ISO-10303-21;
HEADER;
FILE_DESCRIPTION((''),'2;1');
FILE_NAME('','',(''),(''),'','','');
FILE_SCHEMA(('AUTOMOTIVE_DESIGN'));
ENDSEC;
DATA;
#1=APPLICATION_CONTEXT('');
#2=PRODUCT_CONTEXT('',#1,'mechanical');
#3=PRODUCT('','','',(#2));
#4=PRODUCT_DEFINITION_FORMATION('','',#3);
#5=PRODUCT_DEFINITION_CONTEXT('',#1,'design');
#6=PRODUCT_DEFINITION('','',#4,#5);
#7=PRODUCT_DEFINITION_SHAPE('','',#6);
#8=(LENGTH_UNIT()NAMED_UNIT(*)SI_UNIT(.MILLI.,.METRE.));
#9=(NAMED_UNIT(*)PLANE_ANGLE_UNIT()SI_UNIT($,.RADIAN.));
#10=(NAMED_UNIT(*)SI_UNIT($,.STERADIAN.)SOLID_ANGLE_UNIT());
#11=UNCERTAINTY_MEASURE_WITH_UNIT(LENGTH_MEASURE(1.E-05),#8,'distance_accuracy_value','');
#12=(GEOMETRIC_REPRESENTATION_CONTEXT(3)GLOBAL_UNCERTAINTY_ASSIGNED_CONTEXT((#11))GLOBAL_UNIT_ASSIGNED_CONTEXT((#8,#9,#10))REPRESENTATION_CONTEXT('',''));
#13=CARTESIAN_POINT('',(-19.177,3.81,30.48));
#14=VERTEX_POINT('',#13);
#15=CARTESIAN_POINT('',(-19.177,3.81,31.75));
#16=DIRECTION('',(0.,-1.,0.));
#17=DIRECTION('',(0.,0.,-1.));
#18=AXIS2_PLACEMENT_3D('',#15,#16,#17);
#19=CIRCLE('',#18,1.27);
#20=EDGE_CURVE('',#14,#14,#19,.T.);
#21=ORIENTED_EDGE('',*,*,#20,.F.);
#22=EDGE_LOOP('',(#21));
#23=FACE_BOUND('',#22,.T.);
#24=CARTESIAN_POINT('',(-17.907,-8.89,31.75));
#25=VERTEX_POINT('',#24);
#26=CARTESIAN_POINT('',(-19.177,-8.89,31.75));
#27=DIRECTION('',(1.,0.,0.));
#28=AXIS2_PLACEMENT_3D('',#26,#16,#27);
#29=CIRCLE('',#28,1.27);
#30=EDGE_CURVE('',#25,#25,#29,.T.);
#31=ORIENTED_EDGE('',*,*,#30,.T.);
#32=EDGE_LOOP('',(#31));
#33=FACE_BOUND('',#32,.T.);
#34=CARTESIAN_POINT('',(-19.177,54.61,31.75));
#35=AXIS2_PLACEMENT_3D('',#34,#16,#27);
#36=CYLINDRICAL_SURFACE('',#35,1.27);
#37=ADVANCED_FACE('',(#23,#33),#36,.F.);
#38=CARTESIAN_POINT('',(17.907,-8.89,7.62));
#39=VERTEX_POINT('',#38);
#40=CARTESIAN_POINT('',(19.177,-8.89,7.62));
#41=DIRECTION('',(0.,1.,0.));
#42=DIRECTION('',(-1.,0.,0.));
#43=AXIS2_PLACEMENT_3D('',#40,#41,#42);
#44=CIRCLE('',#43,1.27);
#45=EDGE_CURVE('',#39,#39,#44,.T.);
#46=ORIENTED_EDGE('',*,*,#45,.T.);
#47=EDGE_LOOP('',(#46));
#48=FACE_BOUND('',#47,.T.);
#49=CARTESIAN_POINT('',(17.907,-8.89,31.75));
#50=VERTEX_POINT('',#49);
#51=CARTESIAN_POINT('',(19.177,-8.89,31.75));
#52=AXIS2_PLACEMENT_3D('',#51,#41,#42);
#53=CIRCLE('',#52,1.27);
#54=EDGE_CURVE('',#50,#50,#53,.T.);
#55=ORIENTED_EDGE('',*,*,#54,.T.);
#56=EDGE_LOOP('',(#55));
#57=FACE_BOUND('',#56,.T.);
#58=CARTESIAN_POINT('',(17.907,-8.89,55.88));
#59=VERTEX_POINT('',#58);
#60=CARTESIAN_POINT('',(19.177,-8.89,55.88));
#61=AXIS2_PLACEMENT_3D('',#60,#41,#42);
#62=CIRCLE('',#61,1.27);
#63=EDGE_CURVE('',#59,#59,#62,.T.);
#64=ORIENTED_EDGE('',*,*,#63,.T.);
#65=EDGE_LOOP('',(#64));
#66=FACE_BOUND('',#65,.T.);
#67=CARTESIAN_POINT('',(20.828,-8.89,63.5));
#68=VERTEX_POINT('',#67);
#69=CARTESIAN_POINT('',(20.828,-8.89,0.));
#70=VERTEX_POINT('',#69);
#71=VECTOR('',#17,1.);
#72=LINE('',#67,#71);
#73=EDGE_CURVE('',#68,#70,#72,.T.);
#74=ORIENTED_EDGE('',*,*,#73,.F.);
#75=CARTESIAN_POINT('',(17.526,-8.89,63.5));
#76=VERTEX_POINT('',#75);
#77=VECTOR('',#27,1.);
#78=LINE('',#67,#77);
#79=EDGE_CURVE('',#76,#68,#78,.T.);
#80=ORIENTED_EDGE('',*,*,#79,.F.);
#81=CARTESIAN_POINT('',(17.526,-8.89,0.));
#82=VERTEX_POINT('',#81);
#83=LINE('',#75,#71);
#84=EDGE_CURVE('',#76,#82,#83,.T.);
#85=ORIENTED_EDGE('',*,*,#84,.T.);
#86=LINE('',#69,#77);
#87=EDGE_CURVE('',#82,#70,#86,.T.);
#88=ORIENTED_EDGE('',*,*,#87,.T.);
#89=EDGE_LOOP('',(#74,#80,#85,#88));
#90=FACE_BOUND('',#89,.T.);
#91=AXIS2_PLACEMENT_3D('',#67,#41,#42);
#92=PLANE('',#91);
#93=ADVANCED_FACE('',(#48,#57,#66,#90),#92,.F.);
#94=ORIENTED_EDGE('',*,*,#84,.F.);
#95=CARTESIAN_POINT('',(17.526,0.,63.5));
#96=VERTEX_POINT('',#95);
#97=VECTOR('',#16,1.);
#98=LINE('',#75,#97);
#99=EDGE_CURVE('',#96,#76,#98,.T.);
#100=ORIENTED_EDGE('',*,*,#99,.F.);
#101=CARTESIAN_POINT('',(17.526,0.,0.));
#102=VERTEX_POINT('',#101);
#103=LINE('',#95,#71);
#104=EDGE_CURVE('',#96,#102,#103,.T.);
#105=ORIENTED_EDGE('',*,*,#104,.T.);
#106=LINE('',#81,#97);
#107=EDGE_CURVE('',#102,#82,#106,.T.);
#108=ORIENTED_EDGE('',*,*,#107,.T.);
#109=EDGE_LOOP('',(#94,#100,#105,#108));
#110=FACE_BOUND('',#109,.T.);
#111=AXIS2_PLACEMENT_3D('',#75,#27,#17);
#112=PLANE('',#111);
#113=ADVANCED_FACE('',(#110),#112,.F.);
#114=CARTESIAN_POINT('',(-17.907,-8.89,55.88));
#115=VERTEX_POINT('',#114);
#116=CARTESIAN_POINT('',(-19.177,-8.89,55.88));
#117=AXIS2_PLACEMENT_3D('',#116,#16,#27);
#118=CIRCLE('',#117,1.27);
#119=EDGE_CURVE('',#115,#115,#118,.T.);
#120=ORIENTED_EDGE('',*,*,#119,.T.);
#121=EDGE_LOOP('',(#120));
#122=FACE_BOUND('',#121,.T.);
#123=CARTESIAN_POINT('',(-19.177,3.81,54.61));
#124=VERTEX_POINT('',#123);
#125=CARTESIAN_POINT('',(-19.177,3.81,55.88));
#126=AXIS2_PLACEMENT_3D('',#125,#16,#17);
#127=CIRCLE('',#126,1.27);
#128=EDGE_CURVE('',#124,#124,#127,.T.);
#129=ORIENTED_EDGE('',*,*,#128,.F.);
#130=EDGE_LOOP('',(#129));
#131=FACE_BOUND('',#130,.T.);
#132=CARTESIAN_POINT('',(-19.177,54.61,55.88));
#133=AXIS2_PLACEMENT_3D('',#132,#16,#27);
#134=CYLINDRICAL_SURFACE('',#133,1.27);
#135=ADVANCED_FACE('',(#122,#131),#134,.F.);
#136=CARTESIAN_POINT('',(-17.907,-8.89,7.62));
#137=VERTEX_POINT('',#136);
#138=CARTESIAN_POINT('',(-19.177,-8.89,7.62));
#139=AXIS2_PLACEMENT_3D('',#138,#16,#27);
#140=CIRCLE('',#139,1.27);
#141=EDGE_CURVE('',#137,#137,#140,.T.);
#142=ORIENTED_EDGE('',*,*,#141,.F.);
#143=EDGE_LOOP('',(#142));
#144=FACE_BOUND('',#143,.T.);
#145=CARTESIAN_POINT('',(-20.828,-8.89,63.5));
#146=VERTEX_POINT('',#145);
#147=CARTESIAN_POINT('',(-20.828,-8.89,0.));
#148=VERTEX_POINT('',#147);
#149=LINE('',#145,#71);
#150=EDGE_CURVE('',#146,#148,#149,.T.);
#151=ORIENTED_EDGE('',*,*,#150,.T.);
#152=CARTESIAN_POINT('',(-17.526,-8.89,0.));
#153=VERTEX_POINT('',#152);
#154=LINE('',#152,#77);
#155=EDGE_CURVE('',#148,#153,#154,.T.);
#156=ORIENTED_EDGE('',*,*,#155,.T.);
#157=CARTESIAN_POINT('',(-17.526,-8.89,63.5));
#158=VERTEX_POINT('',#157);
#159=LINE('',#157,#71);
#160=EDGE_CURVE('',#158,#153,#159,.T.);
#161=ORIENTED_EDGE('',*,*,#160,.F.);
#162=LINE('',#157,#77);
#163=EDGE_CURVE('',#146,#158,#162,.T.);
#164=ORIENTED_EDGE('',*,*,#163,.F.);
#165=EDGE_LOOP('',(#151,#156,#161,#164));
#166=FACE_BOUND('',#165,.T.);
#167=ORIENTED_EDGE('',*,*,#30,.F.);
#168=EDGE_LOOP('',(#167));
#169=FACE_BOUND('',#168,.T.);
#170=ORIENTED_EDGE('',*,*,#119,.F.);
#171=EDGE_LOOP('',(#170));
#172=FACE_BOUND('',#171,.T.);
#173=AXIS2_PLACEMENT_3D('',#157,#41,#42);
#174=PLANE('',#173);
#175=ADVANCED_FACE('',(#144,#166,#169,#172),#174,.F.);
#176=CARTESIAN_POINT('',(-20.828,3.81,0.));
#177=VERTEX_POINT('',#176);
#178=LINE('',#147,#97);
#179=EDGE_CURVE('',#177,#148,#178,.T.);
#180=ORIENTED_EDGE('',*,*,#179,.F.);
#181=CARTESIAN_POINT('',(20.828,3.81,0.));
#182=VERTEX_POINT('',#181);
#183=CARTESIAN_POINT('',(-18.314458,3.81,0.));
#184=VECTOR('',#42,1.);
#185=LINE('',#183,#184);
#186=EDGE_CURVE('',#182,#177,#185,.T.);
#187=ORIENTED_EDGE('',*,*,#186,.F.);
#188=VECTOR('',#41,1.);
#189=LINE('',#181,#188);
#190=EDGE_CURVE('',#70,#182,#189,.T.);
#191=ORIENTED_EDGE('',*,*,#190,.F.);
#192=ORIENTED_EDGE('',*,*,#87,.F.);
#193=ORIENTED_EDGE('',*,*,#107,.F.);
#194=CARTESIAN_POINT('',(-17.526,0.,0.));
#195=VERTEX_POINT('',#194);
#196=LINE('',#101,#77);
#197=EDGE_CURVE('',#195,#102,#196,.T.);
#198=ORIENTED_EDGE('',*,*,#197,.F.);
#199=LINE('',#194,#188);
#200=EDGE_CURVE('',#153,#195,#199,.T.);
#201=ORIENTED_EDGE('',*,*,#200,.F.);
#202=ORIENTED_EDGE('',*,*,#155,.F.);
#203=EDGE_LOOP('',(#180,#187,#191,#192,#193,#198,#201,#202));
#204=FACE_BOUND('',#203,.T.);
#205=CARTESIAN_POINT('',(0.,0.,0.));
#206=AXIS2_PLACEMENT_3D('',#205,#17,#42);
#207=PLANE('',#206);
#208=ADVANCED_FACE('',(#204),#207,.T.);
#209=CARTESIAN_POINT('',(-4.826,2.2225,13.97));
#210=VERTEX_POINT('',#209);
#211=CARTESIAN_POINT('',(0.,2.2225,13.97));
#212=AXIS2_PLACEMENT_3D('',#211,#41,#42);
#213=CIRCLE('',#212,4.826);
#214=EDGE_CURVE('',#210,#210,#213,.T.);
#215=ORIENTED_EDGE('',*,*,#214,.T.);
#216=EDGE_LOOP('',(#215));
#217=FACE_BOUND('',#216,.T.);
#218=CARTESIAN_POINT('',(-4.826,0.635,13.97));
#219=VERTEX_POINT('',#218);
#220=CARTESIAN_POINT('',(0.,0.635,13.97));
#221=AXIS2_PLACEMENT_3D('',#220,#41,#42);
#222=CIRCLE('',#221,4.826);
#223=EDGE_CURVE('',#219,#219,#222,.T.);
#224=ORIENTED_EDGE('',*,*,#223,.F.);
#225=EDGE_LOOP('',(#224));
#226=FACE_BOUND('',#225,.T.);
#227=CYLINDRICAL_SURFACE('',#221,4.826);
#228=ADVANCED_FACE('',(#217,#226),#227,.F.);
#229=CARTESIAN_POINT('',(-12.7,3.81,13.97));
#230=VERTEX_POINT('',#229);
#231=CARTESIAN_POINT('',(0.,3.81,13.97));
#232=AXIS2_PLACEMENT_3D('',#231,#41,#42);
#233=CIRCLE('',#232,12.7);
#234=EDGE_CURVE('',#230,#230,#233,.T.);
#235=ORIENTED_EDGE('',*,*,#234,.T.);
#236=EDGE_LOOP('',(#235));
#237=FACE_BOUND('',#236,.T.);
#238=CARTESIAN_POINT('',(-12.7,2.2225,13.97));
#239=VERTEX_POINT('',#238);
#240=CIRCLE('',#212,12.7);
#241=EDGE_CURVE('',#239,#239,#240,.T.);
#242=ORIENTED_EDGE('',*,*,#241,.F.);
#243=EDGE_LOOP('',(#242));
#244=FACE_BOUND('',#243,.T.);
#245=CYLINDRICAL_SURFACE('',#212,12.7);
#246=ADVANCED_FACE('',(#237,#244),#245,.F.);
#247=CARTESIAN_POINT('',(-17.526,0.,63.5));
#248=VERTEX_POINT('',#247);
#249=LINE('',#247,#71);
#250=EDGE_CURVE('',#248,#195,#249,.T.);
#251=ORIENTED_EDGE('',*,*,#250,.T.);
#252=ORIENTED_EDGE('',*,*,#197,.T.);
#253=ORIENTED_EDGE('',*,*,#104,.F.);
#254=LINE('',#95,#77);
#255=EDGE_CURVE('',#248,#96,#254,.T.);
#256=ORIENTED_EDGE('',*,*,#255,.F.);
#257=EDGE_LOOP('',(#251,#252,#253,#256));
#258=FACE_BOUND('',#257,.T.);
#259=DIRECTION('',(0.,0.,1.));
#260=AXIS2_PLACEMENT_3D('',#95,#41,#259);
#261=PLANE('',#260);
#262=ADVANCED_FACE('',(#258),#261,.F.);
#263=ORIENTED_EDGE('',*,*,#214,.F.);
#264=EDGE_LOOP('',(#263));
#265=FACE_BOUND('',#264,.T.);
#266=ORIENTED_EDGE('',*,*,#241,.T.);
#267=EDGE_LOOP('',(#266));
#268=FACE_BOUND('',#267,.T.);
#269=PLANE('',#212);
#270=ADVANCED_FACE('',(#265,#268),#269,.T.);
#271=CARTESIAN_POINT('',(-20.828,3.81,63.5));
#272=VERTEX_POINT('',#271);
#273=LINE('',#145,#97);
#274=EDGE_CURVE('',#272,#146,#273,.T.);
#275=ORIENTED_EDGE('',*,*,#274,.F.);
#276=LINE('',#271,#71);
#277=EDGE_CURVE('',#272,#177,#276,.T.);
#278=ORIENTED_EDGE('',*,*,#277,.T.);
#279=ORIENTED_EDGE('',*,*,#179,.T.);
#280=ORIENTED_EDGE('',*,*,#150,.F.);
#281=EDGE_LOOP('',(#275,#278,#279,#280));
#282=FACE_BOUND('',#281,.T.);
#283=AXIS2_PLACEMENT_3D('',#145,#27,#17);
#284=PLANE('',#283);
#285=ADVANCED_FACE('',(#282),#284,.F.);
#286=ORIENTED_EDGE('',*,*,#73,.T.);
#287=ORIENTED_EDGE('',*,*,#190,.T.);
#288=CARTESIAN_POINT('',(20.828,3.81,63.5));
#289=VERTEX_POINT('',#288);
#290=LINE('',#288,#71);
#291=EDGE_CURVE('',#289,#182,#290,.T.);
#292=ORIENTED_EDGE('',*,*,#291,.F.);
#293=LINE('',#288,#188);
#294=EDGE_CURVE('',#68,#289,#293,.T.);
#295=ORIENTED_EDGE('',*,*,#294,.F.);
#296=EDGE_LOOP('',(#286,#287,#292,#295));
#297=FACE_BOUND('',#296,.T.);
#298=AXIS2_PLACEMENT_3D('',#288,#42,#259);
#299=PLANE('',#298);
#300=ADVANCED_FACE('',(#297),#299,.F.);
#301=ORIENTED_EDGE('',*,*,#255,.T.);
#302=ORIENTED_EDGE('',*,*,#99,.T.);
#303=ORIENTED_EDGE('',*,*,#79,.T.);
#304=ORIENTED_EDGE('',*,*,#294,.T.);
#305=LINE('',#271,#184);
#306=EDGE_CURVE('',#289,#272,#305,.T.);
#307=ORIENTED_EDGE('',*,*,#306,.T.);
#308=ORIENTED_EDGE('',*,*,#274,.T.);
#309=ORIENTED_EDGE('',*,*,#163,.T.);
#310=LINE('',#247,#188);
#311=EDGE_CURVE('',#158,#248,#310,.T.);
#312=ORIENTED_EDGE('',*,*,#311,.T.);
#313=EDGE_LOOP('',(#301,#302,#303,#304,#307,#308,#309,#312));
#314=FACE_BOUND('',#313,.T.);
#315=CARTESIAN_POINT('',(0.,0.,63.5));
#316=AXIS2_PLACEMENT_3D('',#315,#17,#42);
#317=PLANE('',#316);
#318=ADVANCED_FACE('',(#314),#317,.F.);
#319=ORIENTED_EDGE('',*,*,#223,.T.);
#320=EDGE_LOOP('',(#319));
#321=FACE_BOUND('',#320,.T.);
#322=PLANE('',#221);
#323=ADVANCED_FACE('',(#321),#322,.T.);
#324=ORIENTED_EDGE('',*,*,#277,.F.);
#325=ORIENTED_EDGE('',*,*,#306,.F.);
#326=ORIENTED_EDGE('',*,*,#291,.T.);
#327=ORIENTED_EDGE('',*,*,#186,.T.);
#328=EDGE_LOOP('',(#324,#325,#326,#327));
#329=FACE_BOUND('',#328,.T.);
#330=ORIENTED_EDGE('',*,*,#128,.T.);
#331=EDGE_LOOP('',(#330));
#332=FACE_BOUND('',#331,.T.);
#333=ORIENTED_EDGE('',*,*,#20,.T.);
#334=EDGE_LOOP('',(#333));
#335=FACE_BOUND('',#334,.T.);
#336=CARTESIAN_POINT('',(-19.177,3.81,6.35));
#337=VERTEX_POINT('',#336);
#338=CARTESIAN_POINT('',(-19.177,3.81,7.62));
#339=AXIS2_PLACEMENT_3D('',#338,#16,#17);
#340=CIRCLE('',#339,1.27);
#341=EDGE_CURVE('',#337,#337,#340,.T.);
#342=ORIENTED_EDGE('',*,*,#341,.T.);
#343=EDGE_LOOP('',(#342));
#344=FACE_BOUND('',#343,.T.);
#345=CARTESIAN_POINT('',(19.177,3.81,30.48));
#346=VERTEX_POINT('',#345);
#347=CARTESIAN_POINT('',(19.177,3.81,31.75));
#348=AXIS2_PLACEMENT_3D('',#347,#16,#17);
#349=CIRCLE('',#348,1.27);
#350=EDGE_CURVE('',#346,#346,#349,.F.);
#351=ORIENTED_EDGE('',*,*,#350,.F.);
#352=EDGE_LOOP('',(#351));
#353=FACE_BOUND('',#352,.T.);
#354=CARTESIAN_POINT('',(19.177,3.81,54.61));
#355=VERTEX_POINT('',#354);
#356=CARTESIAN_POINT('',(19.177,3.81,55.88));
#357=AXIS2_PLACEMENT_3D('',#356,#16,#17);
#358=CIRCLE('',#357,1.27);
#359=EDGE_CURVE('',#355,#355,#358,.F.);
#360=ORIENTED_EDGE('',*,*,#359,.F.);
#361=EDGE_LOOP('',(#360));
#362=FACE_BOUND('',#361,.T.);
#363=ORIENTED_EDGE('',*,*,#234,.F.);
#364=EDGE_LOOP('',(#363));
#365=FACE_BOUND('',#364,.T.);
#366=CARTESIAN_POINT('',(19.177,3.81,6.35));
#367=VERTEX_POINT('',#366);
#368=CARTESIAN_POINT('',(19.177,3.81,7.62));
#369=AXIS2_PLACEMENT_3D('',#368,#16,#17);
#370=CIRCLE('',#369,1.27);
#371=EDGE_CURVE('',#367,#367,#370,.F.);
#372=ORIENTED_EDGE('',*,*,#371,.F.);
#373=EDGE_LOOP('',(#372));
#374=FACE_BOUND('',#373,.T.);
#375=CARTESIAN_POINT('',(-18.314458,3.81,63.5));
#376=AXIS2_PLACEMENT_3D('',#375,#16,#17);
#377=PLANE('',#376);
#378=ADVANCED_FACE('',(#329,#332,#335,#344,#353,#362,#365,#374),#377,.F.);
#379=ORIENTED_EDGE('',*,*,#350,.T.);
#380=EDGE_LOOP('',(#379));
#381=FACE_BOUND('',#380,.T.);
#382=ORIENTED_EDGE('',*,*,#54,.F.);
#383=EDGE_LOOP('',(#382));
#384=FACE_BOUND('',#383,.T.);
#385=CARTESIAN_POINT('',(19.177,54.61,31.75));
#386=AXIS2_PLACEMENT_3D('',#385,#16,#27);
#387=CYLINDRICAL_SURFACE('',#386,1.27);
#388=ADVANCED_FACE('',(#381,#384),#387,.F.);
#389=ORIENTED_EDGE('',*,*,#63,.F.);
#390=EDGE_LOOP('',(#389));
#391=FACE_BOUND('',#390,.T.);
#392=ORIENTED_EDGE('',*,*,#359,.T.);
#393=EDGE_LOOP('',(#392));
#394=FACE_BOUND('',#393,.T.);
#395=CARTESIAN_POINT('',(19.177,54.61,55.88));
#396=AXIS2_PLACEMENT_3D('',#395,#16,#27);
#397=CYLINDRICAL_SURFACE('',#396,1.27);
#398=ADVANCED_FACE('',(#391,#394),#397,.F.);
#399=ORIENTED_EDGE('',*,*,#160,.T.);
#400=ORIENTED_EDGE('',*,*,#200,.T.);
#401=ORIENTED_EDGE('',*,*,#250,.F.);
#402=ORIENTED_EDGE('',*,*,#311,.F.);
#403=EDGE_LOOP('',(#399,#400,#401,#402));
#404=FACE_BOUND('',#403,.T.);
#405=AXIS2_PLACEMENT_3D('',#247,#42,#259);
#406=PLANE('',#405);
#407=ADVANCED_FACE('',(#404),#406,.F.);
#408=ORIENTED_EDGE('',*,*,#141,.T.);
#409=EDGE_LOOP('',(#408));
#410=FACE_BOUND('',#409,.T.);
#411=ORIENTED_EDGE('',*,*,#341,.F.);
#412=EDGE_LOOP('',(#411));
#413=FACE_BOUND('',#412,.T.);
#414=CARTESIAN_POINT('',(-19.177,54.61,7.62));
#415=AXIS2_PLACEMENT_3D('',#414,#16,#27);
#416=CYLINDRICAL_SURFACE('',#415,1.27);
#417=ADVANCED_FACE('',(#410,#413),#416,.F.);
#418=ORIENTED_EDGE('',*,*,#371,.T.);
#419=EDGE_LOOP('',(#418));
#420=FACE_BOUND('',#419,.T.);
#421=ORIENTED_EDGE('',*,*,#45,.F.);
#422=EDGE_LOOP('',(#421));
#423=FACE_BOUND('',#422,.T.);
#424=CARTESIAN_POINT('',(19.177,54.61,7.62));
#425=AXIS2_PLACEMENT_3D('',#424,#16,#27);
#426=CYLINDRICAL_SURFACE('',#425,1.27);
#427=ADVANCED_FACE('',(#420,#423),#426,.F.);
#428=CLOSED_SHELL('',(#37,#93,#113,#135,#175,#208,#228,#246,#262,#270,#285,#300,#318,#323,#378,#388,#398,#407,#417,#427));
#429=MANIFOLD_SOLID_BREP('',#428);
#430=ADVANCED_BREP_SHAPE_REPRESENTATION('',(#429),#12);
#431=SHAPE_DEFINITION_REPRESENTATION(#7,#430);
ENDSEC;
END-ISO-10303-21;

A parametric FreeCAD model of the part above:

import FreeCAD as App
import Part
import Sketcher
Q = App.Units.Quantity


def add_polygon(sketch, points):
    """Adds a closed chain of lines whose ends are joined by coincident constraints."""
    first, n = sketch.GeometryCount, len(points)
    for a, b in zip(points, points[1:] + points[:1]):
        sketch.addGeometry(Part.LineSegment(App.Vector(*a, 0), App.Vector(*b, 0)), False)
    for i in range(n):
        sketch.addConstraint(Sketcher.Constraint("Coincident", first + i, 2, first + (i + 1) % n, 1))

doc = App.newDocument("Part")
params = doc.addObject("Spreadsheet::Sheet", "Params")
for row, (alias, value) in enumerate([
    ("sketch1_height", "0.5 in"),
    ("sketch1_width", "1.64 in"),
    ("sketch1_width2", "0.13 in"),
    ("sketch1_height2", "0.35 in"),
    ("pad1_length", "2.5 in"),
    ("sketch2_diameter", "0.1 in"),
    ("pocket1_length", "2.5 in"),
    ("sketch3_diameter", "1 in"),
    ("pocket2_length", "0.0625 in"),
    ("sketch4_diameter", "0.38 in"),
    ("pocket3_length", "0.0625 in"),
], start=1):
    params.set(f"A{row}", alias)
    params.set(f"B{row}", "=" + value)
    params.setAlias(f"B{row}", alias)

body = doc.addObject("PartDesign::Body", "Body")

sketch1 = body.newObject("Sketcher::SketchObject", "Sketch")
sketch1.AttachmentSupport = (doc.getObject("XY_Plane"), [""])
sketch1.MapMode = "FlatFace"
add_polygon(sketch1, [(20.8, 3.8), (-20.8, 3.8), (-20.8, -8.9), (-17.5, -8.9), (-17.5, 0), (17.5, 0), (17.5, -8.9), (20.8, -8.9)])
sketch1.addConstraint(Sketcher.Constraint("Horizontal", 0))
sketch1.addConstraint(Sketcher.Constraint("Vertical", 1))
sketch1.addConstraint(Sketcher.Constraint("Horizontal", 2))
sketch1.addConstraint(Sketcher.Constraint("Vertical", 3))
sketch1.addConstraint(Sketcher.Constraint("Horizontal", 4))
sketch1.addConstraint(Sketcher.Constraint("Vertical", 5))
sketch1.addConstraint(Sketcher.Constraint("Horizontal", 6))
sketch1.addConstraint(Sketcher.Constraint("Vertical", 7))
sketch1.addConstraint(Sketcher.Constraint("Symmetric", 3, 2, 4, 2, -1, 1))
sketch1.addConstraint(Sketcher.Constraint("Symmetric", 1, 2, 6, 2, -2))
sketch1.addConstraint(Sketcher.Constraint("DistanceY", 1, 2, 1, 1, Q("0.5 in")))
sketch1.addConstraint(Sketcher.Constraint("DistanceX", 0, 2, 0, 1, Q("1.64 in")))
sketch1.addConstraint(Sketcher.Constraint("DistanceX", 2, 1, 2, 2, Q("0.13 in")))
sketch1.addConstraint(Sketcher.Constraint("DistanceY", 3, 1, 3, 2, Q("0.35 in")))
sketch1.setExpression("Constraints[18]", "Params.sketch1_height")
sketch1.setExpression("Constraints[19]", "Params.sketch1_width")
sketch1.setExpression("Constraints[20]", "Params.sketch1_width2")
sketch1.setExpression("Constraints[21]", "Params.sketch1_height2")
pad1 = body.newObject("PartDesign::Pad", "Pad")
pad1.Profile = sketch1
pad1.setExpression("Length", "Params.pad1_length")

sketch2 = body.newObject("Sketcher::SketchObject", "Sketch001")
sketch2.AttachmentSupport = (doc.getObject("XZ_Plane"), [""])
sketch2.MapMode = "FlatFace"
sketch2.AttachmentOffset = App.Placement(App.Vector(0, 0, 0.35 * 25.4), App.Rotation())
sketch2.addGeometry(Part.Circle(App.Vector(-19.2, 7.6, 0), App.Vector(0, 0, 1), 1.3), False)
sketch2.addGeometry(Part.Circle(App.Vector(-19.2, 55.9, 0), App.Vector(0, 0, 1), 1.3), False)
sketch2.addGeometry(Part.Circle(App.Vector(-19.2, 31.8, 0), App.Vector(0, 0, 1), 1.3), False)
sketch2.addConstraint(Sketcher.Constraint("Equal", 0, 1))
sketch2.addConstraint(Sketcher.Constraint("Equal", 1, 2))
sketch2.addConstraint(Sketcher.Constraint("Vertical", 0, 3, 1, 3))
sketch2.addConstraint(Sketcher.Constraint("Vertical", 1, 3, 2, 3))
sketch2.addConstraint(Sketcher.Constraint("Diameter", 0, Q("0.1 in")))
sketch2.addConstraint(Sketcher.Constraint("DistanceY", -1, 1, 0, 3, Q("0.3 in")))
sketch2.addConstraint(Sketcher.Constraint("DistanceY", -1, 1, 1, 3, Q("2.2 in")))
sketch2.addConstraint(Sketcher.Constraint("DistanceY", -1, 1, 2, 3, Q("1.25 in")))
sketch2.addConstraint(Sketcher.Constraint("DistanceX", 0, 3, -1, 1, Q("0.755 in")))
sketch2.setExpression("Constraints[4]", "Params.sketch2_diameter")
pocket1 = body.newObject("PartDesign::Pocket", "Pocket")
pocket1.Profile = sketch2
pocket1.setExpression("Length", "Params.pocket1_length")
doc.recompute()

mirrored = body.newObject("PartDesign::Mirrored", "Mirrored")
mirrored.Originals = [pocket1]
mirrored.MirrorPlane = (doc.getObject("YZ_Plane"), [""])
body.Tip = mirrored

sketch3 = body.newObject("Sketcher::SketchObject", "Sketch002")
sketch3.AttachmentSupport = (doc.getObject("XZ_Plane"), [""])
sketch3.MapMode = "FlatFace"
sketch3.AttachmentOffset = App.Placement(App.Vector(0, 0, -0.15 * 25.4), App.Rotation())
sketch3.addGeometry(Part.Circle(App.Vector(0, 14, 0), App.Vector(0, 0, 1), 13), False)
sketch3.addConstraint(Sketcher.Constraint("PointOnObject", 0, 3, -2))
sketch3.addConstraint(Sketcher.Constraint("Diameter", 0, Q("1 in")))
sketch3.addConstraint(Sketcher.Constraint("DistanceY", -1, 1, 0, 3, Q("0.55 in")))
sketch3.setExpression("Constraints[1]", "Params.sketch3_diameter")
pocket2 = body.newObject("PartDesign::Pocket", "Pocket001")
pocket2.Profile = sketch3
pocket2.setExpression("Length", "Params.pocket2_length")
pocket2.Reversed = True

sketch4 = body.newObject("Sketcher::SketchObject", "Sketch003")
sketch4.AttachmentSupport = (doc.getObject("XZ_Plane"), [""])
sketch4.MapMode = "FlatFace"
sketch4.AttachmentOffset = App.Placement(App.Vector(0, 0, -0.0875 * 25.4), App.Rotation())
sketch4.addGeometry(Part.Circle(App.Vector(0, 14, 0), App.Vector(0, 0, 1), 4.8), False)
sketch4.addConstraint(Sketcher.Constraint("PointOnObject", 0, 3, -2))
sketch4.addConstraint(Sketcher.Constraint("Diameter", 0, Q("0.38 in")))
sketch4.addConstraint(Sketcher.Constraint("DistanceY", -1, 1, 0, 3, Q("0.55 in")))
sketch4.setExpression("Constraints[1]", "Params.sketch4_diameter")
pocket3 = body.newObject("PartDesign::Pocket", "Pocket002")
pocket3.Profile = sketch4
pocket3.setExpression("Length", "Params.pocket3_length")
pocket3.Reversed = True

doc.recompute()
